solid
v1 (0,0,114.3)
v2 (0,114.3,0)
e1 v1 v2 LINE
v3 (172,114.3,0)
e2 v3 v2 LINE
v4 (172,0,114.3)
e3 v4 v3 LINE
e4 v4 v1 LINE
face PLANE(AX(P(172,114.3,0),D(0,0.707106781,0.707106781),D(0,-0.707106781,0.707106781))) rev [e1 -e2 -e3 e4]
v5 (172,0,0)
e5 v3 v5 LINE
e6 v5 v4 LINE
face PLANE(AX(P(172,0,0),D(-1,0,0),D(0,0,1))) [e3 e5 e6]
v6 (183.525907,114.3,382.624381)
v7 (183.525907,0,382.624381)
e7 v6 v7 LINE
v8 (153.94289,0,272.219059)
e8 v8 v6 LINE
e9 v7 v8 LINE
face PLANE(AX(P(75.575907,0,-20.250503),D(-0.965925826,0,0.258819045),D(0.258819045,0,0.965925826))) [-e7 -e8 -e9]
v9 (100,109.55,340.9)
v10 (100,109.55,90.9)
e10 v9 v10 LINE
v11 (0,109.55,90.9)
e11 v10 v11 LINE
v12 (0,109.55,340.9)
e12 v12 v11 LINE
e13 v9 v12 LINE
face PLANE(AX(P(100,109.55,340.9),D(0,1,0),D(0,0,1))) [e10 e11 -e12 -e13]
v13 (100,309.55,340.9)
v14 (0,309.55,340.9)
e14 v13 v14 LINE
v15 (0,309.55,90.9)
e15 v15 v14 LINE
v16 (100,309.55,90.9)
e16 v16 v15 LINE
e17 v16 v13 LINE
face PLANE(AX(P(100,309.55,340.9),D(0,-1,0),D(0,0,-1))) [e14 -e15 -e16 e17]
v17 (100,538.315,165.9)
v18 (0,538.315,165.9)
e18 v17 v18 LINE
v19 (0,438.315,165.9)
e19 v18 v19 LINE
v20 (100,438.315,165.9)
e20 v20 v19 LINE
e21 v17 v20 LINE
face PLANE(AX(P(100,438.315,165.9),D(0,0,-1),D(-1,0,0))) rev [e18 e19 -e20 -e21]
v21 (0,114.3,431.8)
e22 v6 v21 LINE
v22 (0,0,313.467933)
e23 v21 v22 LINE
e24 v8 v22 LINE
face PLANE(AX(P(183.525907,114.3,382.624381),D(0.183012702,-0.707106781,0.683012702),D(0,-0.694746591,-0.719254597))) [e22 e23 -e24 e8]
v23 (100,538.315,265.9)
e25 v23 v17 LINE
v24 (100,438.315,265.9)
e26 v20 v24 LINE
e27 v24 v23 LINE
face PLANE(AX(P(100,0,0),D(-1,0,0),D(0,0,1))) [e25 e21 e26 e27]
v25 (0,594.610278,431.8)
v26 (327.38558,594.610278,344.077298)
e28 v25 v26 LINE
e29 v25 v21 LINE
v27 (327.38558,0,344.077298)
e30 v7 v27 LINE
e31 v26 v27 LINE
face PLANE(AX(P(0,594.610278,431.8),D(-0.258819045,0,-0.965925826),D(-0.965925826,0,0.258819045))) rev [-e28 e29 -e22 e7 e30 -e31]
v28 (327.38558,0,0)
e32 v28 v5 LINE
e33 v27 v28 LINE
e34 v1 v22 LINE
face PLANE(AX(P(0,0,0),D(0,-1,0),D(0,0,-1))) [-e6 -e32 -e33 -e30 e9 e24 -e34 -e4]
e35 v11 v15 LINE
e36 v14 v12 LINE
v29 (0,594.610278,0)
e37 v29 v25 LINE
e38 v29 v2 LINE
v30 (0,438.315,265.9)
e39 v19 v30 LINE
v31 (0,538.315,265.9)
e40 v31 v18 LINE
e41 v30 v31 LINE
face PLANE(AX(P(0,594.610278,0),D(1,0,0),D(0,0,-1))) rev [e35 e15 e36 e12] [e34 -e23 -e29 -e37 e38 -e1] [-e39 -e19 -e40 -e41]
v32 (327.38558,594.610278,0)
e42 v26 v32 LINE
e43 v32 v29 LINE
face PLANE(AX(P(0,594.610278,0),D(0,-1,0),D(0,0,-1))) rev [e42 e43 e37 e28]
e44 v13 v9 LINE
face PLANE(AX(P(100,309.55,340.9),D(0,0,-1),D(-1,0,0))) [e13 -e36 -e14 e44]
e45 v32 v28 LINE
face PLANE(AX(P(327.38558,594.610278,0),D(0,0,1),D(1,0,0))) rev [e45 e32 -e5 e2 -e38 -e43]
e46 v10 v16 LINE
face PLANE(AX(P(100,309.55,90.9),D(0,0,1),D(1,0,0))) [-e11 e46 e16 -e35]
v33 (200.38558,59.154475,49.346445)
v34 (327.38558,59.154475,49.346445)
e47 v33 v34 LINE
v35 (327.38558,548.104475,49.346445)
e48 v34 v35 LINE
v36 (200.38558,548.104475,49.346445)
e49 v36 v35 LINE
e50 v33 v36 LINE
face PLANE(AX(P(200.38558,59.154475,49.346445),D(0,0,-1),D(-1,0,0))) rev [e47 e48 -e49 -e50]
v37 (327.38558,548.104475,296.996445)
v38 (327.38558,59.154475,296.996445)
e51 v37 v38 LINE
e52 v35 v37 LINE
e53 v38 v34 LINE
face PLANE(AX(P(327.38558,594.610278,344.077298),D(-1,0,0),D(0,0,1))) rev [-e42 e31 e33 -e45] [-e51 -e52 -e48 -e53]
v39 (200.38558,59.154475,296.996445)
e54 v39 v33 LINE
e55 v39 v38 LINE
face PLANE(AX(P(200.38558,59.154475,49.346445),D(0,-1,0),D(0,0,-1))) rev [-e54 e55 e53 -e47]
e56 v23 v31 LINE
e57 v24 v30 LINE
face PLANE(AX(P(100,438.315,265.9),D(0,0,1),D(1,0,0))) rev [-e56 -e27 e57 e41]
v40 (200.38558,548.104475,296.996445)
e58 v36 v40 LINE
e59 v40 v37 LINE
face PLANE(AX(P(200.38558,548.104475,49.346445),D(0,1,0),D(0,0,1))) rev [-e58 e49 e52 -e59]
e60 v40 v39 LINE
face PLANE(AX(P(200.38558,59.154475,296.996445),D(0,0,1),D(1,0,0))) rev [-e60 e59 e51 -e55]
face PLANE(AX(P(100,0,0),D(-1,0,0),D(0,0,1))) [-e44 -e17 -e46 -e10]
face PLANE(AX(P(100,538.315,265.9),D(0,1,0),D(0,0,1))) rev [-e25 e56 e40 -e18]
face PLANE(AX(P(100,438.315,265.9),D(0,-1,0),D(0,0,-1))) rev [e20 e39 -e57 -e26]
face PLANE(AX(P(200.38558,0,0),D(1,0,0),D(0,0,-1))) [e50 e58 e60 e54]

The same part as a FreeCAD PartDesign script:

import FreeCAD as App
import Part
import Sketcher

V = App.Vector
Q = App.Units.Quantity


def add_polygon(sketch, points):
    """Adds a closed chain of lines whose ends are joined by coincident constraints."""
    first, n = sketch.GeometryCount, len(points)
    for a, b in zip(points, points[1:] + points[:1]):
        sketch.addGeometry(Part.LineSegment(App.Vector(*a, 0), App.Vector(*b, 0)), False)
    for i in range(n):
        sketch.addConstraint(Sketcher.Constraint("Coincident", first + i, 2, first + (i + 1) % n, 1))

doc = App.newDocument("Part")
body = doc.addObject("PartDesign::Body", "Body")

# Sketch on XZ plane
sketch1 = body.newObject("Sketcher::SketchObject", "Sketch")
sketch1.AttachmentSupport = (doc.getObject("XZ_Plane"), [""])
sketch1.MapMode = "FlatFace"
add_polygon(sketch1, [(0, 432), (327, 344), (327, 0), (0, 0)])  # lines 0-3
sketch1.addConstraint([
    Sketcher.Constraint("Vertical", 1),
    Sketcher.Constraint("Horizontal", 2),
    Sketcher.Constraint("Vertical", 3),
    Sketcher.Constraint("Coincident", 2, 2, -1, 1),
    Sketcher.Constraint("Angle", 0, Q("-15 deg")),
    Sketcher.Constraint("DistanceY", 3, 1, 3, 2, 431.8),
    Sketcher.Constraint("DistanceY", 1, 2, 1, 1, 344.077298),
])
pad1 = body.newObject("PartDesign::Pad", "Pad")
pad1.Profile = sketch1
pad1.Length = 594.610278
pad1.Reversed = True

# Sketch on YZ plane
sketch2 = body.newObject("Sketcher::SketchObject", "Sketch001")
sketch2.AttachmentSupport = (doc.getObject("YZ_Plane"), [""])
sketch2.MapMode = "FlatFace"
sketch2.AttachmentOffset = App.Placement(V(0, 0, 327.38558), App.Rotation())
add_polygon(sketch2, [(548, 297), (59, 297), (59, 49), (548, 49)])  # lines 0-3
sketch2.addConstraint([
    Sketcher.Constraint("Horizontal", 0),
    Sketcher.Constraint("Vertical", 1),
    Sketcher.Constraint("Horizontal", 2),
    Sketcher.Constraint("Vertical", 3),
    Sketcher.Constraint("DistanceX", 0, 2, 0, 1, 488.95),
    Sketcher.Constraint("DistanceY", 1, 2, 1, 1, 247.65),
    Sketcher.Constraint("DistanceX", -1, 1, 0, 2, 59.154475),
    Sketcher.Constraint("DistanceY", -1, 1, 0, 2, 296.996445),
])
pocket1 = body.newObject("PartDesign::Pocket", "Pocket")
pocket1.Profile = sketch2
pocket1.Length = 127

# Sketch on YZ plane
sketch3 = body.newObject("Sketcher::SketchObject", "Sketch002")
sketch3.AttachmentSupport = (doc.getObject("YZ_Plane"), [""])
sketch3.MapMode = "FlatFace"
add_polygon(sketch3, [(310, 91), (310, 341), (110, 341), (110, 91)])  # lines 0-3
sketch3.addConstraint([
    Sketcher.Constraint("Vertical", 0),
    Sketcher.Constraint("Horizontal", 1),
    Sketcher.Constraint("Vertical", 2),
    Sketcher.Constraint("Horizontal", 3),
    Sketcher.Constraint("DistanceX", 1, 2, 1, 1, 200.0),
    Sketcher.Constraint("DistanceY", 0, 1, 0, 2, 250.0),
    Sketcher.Constraint("DistanceY", -1, 1, 0, 2, 340.9),
    Sketcher.Constraint("DistanceX", -1, 1, 0, 2, 309.55),
])
pocket2 = body.newObject("PartDesign::Pocket", "Pocket001")
pocket2.Profile = sketch3
pocket2.Length = 100
pocket2.Reversed = True

# Sketch on YZ plane
sketch4 = body.newObject("Sketcher::SketchObject", "Sketch003")
sketch4.AttachmentSupport = (doc.getObject("YZ_Plane"), [""])
sketch4.MapMode = "FlatFace"
add_polygon(sketch4, [(538, 166), (438, 166), (438, 266), (538, 266)])  # lines 0-3
sketch4.addConstraint([
    Sketcher.Constraint("Horizontal", 0),
    Sketcher.Constraint("Vertical", 1),
    Sketcher.Constraint("Horizontal", 2),
    Sketcher.Constraint("Vertical", 3),
    Sketcher.Constraint("Equal", 2, 1),
    Sketcher.Constraint("DistanceX", 0, 2, 0, 1, 100.0),
    Sketcher.Constraint("DistanceY", -1, 1, 0, 2, 165.9),
    Sketcher.Constraint("DistanceX", -1, 1, 0, 2, 438.315),
])
pocket3 = body.newObject("PartDesign::Pocket", "Pocket002")
pocket3.Profile = sketch4
pocket3.Length = 100
pocket3.Reversed = True

# Sketch on YZ plane
sketch5 = body.newObject("Sketcher::SketchObject", "Sketch004")
sketch5.AttachmentSupport = (doc.getObject("YZ_Plane"), [""])
sketch5.MapMode = "FlatFace"
add_polygon(sketch5, [(0, 114), (114, 0), (0, 0)])  # lines 0-2
sketch5.addConstraint([
    Sketcher.Constraint("Horizontal", 1),
    Sketcher.Constraint("Vertical", 2),
    Sketcher.Constraint("Coincident", 1, 2, -1, 1),
    Sketcher.Constraint("Equal", 1, 2),
    Sketcher.Constraint("DistanceX", 1, 2, 1, 1, 114.3),
])
pocket4 = body.newObject("PartDesign::Pocket", "Pocket003")
pocket4.Profile = sketch5
pocket4.Length = 172
pocket4.Reversed = True

# Sketch on an angled plane
sketch6 = body.newObject("Sketcher::SketchObject", "Sketch005")
sketch6.Placement = App.Placement(V(-107.95, 0, 28.925115), App.Rotation(V(0, 1, 0), V(0.258819045, 0, 0.965925826), V(0.965925826, 0, -0.258819045), "ZXY"))
add_polygon(sketch6, [(114, 417), (0, 417), (0, 303)])  # lines 0-2
sketch6.addConstraint([
    Sketcher.Constraint("Horizontal", 0),
    Sketcher.Constraint("Vertical", 1),
    Sketcher.Constraint("PointOnObject", 0, 2, -2),
    Sketcher.Constraint("Equal", 0, 1),
    Sketcher.Constraint("DistanceX", 0, 2, 0, 1, 114.3),
    Sketcher.Constraint("DistanceY", -1, 1, 0, 2, 417.086772),
])
pocket5 = body.newObject("PartDesign::Pocket", "Pocket004")
pocket5.Profile = sketch6
pocket5.Length = 190
pocket5.Reversed = True

doc.recompute()
